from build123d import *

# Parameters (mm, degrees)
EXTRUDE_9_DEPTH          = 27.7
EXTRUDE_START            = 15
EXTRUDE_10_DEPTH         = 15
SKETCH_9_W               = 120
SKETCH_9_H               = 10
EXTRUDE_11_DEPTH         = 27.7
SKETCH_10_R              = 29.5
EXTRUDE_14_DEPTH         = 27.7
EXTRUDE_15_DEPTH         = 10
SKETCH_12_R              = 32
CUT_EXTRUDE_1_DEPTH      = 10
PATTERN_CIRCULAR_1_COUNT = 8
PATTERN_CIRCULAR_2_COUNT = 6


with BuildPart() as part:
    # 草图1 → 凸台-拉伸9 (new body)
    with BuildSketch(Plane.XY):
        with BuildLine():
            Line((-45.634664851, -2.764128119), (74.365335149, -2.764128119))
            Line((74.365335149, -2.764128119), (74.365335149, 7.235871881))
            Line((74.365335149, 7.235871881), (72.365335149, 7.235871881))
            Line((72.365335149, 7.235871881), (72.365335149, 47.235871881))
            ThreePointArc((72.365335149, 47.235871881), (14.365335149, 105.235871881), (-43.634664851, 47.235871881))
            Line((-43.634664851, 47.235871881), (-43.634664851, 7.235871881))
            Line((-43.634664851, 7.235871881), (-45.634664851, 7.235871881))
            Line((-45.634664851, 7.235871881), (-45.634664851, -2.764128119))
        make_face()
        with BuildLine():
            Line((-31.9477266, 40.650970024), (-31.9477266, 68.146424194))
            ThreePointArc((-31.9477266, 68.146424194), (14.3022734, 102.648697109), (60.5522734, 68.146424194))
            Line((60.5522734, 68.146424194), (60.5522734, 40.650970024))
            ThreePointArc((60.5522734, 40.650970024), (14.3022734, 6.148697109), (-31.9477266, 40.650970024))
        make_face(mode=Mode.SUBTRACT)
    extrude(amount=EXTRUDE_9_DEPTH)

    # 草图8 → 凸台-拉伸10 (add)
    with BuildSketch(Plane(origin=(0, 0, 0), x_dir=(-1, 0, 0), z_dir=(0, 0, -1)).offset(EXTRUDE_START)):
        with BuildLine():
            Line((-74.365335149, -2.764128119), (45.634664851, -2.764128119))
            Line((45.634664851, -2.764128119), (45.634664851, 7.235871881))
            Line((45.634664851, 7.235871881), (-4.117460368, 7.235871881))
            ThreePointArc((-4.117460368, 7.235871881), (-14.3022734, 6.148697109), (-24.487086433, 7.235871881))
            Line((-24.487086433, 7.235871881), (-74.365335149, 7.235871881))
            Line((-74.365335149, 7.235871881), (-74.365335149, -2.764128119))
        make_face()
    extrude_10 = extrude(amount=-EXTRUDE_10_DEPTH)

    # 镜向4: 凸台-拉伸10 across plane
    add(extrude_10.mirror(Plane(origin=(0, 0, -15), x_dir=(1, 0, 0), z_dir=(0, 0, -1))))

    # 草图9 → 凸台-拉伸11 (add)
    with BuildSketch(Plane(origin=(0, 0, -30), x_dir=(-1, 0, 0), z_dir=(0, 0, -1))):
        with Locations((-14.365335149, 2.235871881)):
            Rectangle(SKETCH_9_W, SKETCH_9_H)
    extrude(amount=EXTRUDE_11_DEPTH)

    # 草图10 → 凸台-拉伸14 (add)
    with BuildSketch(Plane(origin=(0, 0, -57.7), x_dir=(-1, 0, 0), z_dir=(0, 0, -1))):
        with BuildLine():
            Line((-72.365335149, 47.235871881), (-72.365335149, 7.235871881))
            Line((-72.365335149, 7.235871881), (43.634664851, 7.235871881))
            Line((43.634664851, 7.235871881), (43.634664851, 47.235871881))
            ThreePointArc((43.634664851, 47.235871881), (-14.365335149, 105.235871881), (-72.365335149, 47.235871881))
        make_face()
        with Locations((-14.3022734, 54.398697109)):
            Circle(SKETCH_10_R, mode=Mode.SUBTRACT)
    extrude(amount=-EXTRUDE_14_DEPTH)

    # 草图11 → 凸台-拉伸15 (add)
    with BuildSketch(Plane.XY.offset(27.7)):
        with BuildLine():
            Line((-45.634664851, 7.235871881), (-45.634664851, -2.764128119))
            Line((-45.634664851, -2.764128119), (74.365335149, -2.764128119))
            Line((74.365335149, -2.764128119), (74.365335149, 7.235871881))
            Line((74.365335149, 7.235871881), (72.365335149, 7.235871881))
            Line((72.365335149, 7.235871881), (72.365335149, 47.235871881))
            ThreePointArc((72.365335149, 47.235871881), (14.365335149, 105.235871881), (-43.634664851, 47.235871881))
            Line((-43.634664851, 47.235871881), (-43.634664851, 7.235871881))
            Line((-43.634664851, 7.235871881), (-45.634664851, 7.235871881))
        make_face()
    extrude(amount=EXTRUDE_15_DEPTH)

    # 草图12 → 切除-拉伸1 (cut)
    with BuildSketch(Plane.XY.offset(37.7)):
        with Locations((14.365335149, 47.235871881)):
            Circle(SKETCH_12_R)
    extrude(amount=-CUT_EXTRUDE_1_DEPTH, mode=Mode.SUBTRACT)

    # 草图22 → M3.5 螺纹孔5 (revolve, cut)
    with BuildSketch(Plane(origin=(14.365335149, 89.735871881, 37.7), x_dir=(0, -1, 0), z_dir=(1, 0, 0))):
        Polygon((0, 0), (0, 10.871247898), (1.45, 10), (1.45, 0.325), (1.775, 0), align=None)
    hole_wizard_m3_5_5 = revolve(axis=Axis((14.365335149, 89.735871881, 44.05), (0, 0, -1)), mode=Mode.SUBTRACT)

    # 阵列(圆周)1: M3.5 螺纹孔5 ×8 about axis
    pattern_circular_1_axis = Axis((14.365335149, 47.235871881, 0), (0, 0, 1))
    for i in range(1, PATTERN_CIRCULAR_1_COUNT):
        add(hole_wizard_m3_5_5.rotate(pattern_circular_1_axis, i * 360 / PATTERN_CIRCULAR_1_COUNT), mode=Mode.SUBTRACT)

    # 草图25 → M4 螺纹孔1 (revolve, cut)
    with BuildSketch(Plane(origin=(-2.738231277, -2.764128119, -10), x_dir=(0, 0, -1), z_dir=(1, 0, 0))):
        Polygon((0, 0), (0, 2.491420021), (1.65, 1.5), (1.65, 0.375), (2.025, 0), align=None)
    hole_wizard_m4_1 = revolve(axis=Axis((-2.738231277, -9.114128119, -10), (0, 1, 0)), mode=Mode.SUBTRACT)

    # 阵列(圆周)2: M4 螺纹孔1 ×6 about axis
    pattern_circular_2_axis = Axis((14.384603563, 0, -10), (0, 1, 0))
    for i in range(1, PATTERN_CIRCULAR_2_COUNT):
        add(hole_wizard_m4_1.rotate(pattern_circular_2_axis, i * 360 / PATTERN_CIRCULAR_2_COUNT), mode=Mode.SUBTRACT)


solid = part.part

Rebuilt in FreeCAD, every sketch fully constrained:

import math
import FreeCAD as App
import Part
import Sketcher

V = App.Vector
Q = App.Units.Quantity


def add_polygon(sketch, points):
    """Adds a closed chain of lines whose ends are joined by coincident constraints."""
    first, n = sketch.GeometryCount, len(points)
    for a, b in zip(points, points[1:] + points[:1]):
        sketch.addGeometry(Part.LineSegment(App.Vector(*a, 0), App.Vector(*b, 0)), False)
    for i in range(n):
        sketch.addConstraint(Sketcher.Constraint("Coincident", first + i, 2, first + (i + 1) % n, 1))

doc = App.newDocument("Part")
body = doc.addObject("PartDesign::Body", "Body")

# Sketch on XY plane
sketch1 = body.newObject("Sketcher::SketchObject", "Sketch")
sketch1.AttachmentSupport = (doc.getObject("XY_Plane"), [""])
sketch1.MapMode = "FlatFace"
sketch1.addGeometry([
    Part.LineSegment(V(-45.634665, -2.764128, 0), V(74.365335, -2.764128, 0)),  # 0
    Part.LineSegment(V(74.365335, -2.764128, 0), V(74.365335, 7.235872, 0)),  # 1
    Part.LineSegment(V(74.365335, 7.235872, 0), V(72.365335, 7.235872, 0)),  # 2
    Part.LineSegment(V(72.365335, 7.235872, 0), V(72.365335, 47.235872, 0)),  # 3
    Part.ArcOfCircle(Part.Circle(V(14.365335, 47.235872, 0), V(0, 0, 1), 58), math.radians(0), math.radians(180)),  # 4
    Part.LineSegment(V(-43.634665, 47.235872, 0), V(-43.634665, 7.235872, 0)),  # 5
    Part.LineSegment(V(-43.634665, 7.235872, 0), V(-45.634665, 7.235872, 0)),  # 6
    Part.LineSegment(V(-45.634665, 7.235872, 0), V(-45.634665, -2.764128, 0)),  # 7
    Part.ArcOfCircle(Part.Circle(V(14.302273, 54.398697, 0), V(0, 0, 1), 48.25), math.radians(-163.445516), math.radians(-16.554484)),  # 8
    Part.LineSegment(V(-31.947727, 40.65097, 0), V(-31.947727, 68.146424, 0)),  # 9
    Part.ArcOfCircle(Part.Circle(V(14.302273, 54.398697, 0), V(0, 0, 1), 48.25), math.radians(16.554484), math.radians(163.445516)),  # 10
    Part.LineSegment(V(60.552273, 68.146424, 0), V(60.552273, 40.65097, 0)),  # 11
], False)
sketch1.addConstraint([
    Sketcher.Constraint("Coincident", 0, 2, 1, 1),
    Sketcher.Constraint("Coincident", 1, 2, 2, 1),
    Sketcher.Constraint("Coincident", 2, 2, 3, 1),
    Sketcher.Constraint("Tangent", 3, 2, 4, 1),
    Sketcher.Constraint("Tangent", 4, 2, 5, 1),
    Sketcher.Constraint("Coincident", 5, 2, 6, 1),
    Sketcher.Constraint("Coincident", 6, 2, 7, 1),
    Sketcher.Constraint("Coincident", 7, 2, 0, 1),
    Sketcher.Constraint("Coincident", 8, 1, 9, 1),
    Sketcher.Constraint("Coincident", 9, 2, 10, 2),
    Sketcher.Constraint("Coincident", 10, 1, 11, 1),
    Sketcher.Constraint("Coincident", 11, 2, 8, 2),
    Sketcher.Constraint("Horizontal", 0),
    Sketcher.Constraint("Vertical", 1),
    Sketcher.Constraint("Horizontal", 2),
    Sketcher.Constraint("Vertical", 3),
    Sketcher.Constraint("Vertical", 5),
    Sketcher.Constraint("Horizontal", 6),
    Sketcher.Constraint("Vertical", 7),
    Sketcher.Constraint("Vertical", 9),
    Sketcher.Constraint("Vertical", 11),
    Sketcher.Constraint("Coincident", 10, 3, 8, 3),
    Sketcher.Constraint("Equal", 8, 10),
    Sketcher.Constraint("Horizontal", 2, 2, 5, 2),
    Sketcher.Constraint("Horizontal", 9, 2, 10, 1),
    Sketcher.Constraint("Equal", 2, 6),
    Sketcher.Constraint("Radius", 4, Q("58 mm")),
    Sketcher.Constraint("DistanceX", 0, 1, 0, 2, Q("120 mm")),
    Sketcher.Constraint("DistanceY", 1, 1, 1, 2, Q("10 mm")),
    Sketcher.Constraint("DistanceY", 3, 1, 3, 2, Q("40 mm")),
    Sketcher.Constraint("Radius", 8, Q("48.25 mm")),
    Sketcher.Constraint("DistanceX", 9, 2, 8, 3, Q("46.25 mm")),
    Sketcher.Constraint("DistanceY", 8, 1, 4, 2, Q("6.584902 mm")),
    Sketcher.Constraint("DistanceY", -1, 1, 4, 3, Q("47.235872 mm")),
    Sketcher.Constraint("DistanceX", 8, 3, 4, 3, Q("0.063062 mm")),
    Sketcher.Constraint("DistanceX", -1, 1, 4, 3, Q("14.365335 mm")),
])
pad1 = body.newObject("PartDesign::Pad", "Pad")
pad1.Profile = sketch1
pad1.Length = 27.7

# Sketch on XY plane
sketch2 = body.newObject("Sketcher::SketchObject", "Sketch001")
sketch2.AttachmentSupport = (doc.getObject("XY_Plane"), [""])
sketch2.MapMode = "FlatFace"
sketch2.AttachmentOffset = App.Placement(V(0, 0, -15), App.Rotation())
sketch2.addGeometry([
    Part.LineSegment(V(74.365335, -2.764128, 0), V(-45.634665, -2.764128, 0)),  # 0
    Part.LineSegment(V(-45.634665, -2.764128, 0), V(-45.634665, 7.235872, 0)),  # 1
    Part.LineSegment(V(-45.634665, 7.235872, 0), V(4.11746, 7.235872, 0)),  # 2
    Part.ArcOfCircle(Part.Circle(V(14.302273, 54.398697, 0), V(0, 0, 1), 48.25), math.radians(-102.185897), math.radians(-77.814103)),  # 3
    Part.LineSegment(V(24.487086, 7.235872, 0), V(74.365335, 7.235872, 0)),  # 4
    Part.LineSegment(V(74.365335, 7.235872, 0), V(74.365335, -2.764128, 0)),  # 5
], False)
sketch2.addConstraint([
    Sketcher.Constraint("Coincident", 0, 2, 1, 1),
    Sketcher.Constraint("Coincident", 1, 2, 2, 1),
    Sketcher.Constraint("Coincident", 2, 2, 3, 1),
    Sketcher.Constraint("Coincident", 3, 2, 4, 1),
    Sketcher.Constraint("Coincident", 4, 2, 5, 1),
    Sketcher.Constraint("Coincident", 5, 2, 0, 1),
    Sketcher.Constraint("Horizontal", 0),
    Sketcher.Constraint("Vertical", 1),
    Sketcher.Constraint("Horizontal", 2),
    Sketcher.Constraint("Horizontal", 4),
    Sketcher.Constraint("Vertical", 5),
    Sketcher.Constraint("Horizontal", 2, 2, 3, 2),
    Sketcher.Constraint("DistanceX", 0, 2, 0, 1, Q("120 mm")),
    Sketcher.Constraint("DistanceY", 1, 1, 1, 2, Q("10 mm")),
    Sketcher.Constraint("Radius", 3, Q("48.25 mm")),
    Sketcher.Constraint("DistanceX", 4, 1, 4, 2, Q("49.878249 mm")),
    Sketcher.Constraint("DistanceX", 2, 1, 2, 2, Q("49.752125 mm")),
    Sketcher.Constraint("DistanceY", 0, 2, -1, 1, Q("2.764128 mm")),
    Sketcher.Constraint("DistanceX", -1, 1, 2, 2, Q("4.11746 mm")),
])
pad2 = body.newObject("PartDesign::Pad", "Pad001")
pad2.Profile = sketch2
pad2.Length = 15
doc.recompute()

datumplane = body.newObject("PartDesign::Plane", "DatumPlane")
datumplane.AttachmentSupport = (doc.getObject("XY_Plane"), [""])
datumplane.MapMode = "FlatFace"
datumplane.AttachmentOffset = App.Placement(V(0, 0, -15), App.Rotation())
mirrored = body.newObject("PartDesign::Mirrored", "Mirrored")
mirrored.Originals = [pad2]
mirrored.MirrorPlane = (datumplane, [""])
body.Tip = mirrored

# Sketch on XY plane
sketch3 = body.newObject("Sketcher::SketchObject", "Sketch002")
sketch3.AttachmentSupport = (doc.getObject("XY_Plane"), [""])
sketch3.MapMode = "FlatFace"
sketch3.AttachmentOffset = App.Placement(V(0, 0, -30), App.Rotation())
add_polygon(sketch3, [(74.365335, 7.235872), (74.365335, -2.764128), (-45.634665, -2.764128), (-45.634665, 7.235872)])  # lines 0-3
sketch3.addConstraint([
    Sketcher.Constraint("Vertical", 0),
    Sketcher.Constraint("Horizontal", 1),
    Sketcher.Constraint("Vertical", 2),
    Sketcher.Constraint("Horizontal", 3),
    Sketcher.Constraint("DistanceX", 1, 2, 1, 1, Q("120 mm")),
    Sketcher.Constraint("DistanceY", 0, 2, 0, 1, Q("10 mm")),
    Sketcher.Constraint("DistanceY", 0, 2, -1, 1, Q("2.764128 mm")),
    Sketcher.Constraint("DistanceX", -1, 1, 0, 2, Q("74.365335 mm")),
])
pad3 = body.newObject("PartDesign::Pad", "Pad002")
pad3.Profile = sketch3
pad3.Length = 27.7
pad3.Reversed = True

# Sketch on XY plane
sketch4 = body.newObject("Sketcher::SketchObject", "Sketch003")
sketch4.AttachmentSupport = (doc.getObject("XY_Plane"), [""])
sketch4.MapMode = "FlatFace"
sketch4.AttachmentOffset = App.Placement(V(0, 0, -57.7), App.Rotation())
sketch4.addGeometry([
    Part.LineSegment(V(72.365335, 47.235872, 0), V(72.365335, 7.235872, 0)),  # 0
    Part.LineSegment(V(72.365335, 7.235872, 0), V(-43.634665, 7.235872, 0)),  # 1
    Part.LineSegment(V(-43.634665, 7.235872, 0), V(-43.634665, 47.235872, 0)),  # 2
    Part.ArcOfCircle(Part.Circle(V(14.365335, 47.235872, 0), V(0, 0, 1), 58), math.radians(0), math.radians(180)),  # 3
    Part.Circle(V(14.302273, 54.398697, 0), V(0, 0, 1), 29.5),  # 4
], False)
sketch4.addConstraint([
    Sketcher.Constraint("Coincident", 0, 2, 1, 1),
    Sketcher.Constraint("Coincident", 1, 2, 2, 1),
    Sketcher.Constraint("Tangent", 2, 2, 3, 2),
    Sketcher.Constraint("Tangent", 3, 1, 0, 1),
    Sketcher.Constraint("Vertical", 0),
    Sketcher.Constraint("Horizontal", 1),
    Sketcher.Constraint("Vertical", 2),
    Sketcher.Constraint("Diameter", 4, Q("59 mm")),
    Sketcher.Constraint("Radius", 3, Q("58 mm")),
    Sketcher.Constraint("DistanceY", 0, 2, 0, 1, Q("40 mm")),
    Sketcher.Constraint("DistanceY", -1, 1, 3, 3, Q("47.235872 mm")),
    Sketcher.Constraint("DistanceX", 4, 3, 3, 3, Q("0.063062 mm")),
    Sketcher.Constraint("DistanceX", -1, 1, 3, 3, Q("14.365335 mm")),
    Sketcher.Constraint("DistanceY", -1, 1, 4, 3, Q("54.398697 mm")),
])
pad4 = body.newObject("PartDesign::Pad", "Pad003")
pad4.Profile = sketch4
pad4.Length = 27.7

# Sketch on XY plane
sketch5 = body.newObject("Sketcher::SketchObject", "Sketch004")
sketch5.AttachmentSupport = (doc.getObject("XY_Plane"), [""])
sketch5.MapMode = "FlatFace"
sketch5.AttachmentOffset = App.Placement(V(0, 0, 27.7), App.Rotation())
sketch5.addGeometry([
    Part.LineSegment(V(-45.634665, 7.235872, 0), V(-45.634665, -2.764128, 0)),  # 0
    Part.LineSegment(V(-45.634665, -2.764128, 0), V(74.365335, -2.764128, 0)),  # 1
    Part.LineSegment(V(74.365335, -2.764128, 0), V(74.365335, 7.235872, 0)),  # 2
    Part.LineSegment(V(74.365335, 7.235872, 0), V(72.365335, 7.235872, 0)),  # 3
    Part.LineSegment(V(72.365335, 7.235872, 0), V(72.365335, 47.235872, 0)),  # 4
    Part.ArcOfCircle(Part.Circle(V(14.365335, 47.235872, 0), V(0, 0, 1), 58), math.radians(0), math.radians(180)),  # 5
    Part.LineSegment(V(-43.634665, 47.235872, 0), V(-43.634665, 7.235872, 0)),  # 6
    Part.LineSegment(V(-43.634665, 7.235872, 0), V(-45.634665, 7.235872, 0)),  # 7
], False)
sketch5.addConstraint([
    Sketcher.Constraint("Coincident", 0, 2, 1, 1),
    Sketcher.Constraint("Coincident", 1, 2, 2, 1),
    Sketcher.Constraint("Coincident", 2, 2, 3, 1),
    Sketcher.Constraint("Coincident", 3, 2, 4, 1),
    Sketcher.Constraint("Tangent", 4, 2, 5, 1),
    Sketcher.Constraint("Tangent", 5, 2, 6, 1),
    Sketcher.Constraint("Coincident", 6, 2, 7, 1),
    Sketcher.Constraint("Coincident", 7, 2, 0, 1),
    Sketcher.Constraint("Vertical", 0),
    Sketcher.Constraint("Horizontal", 1),
    Sketcher.Constraint("Vertical", 2),
    Sketcher.Constraint("Horizontal", 3),
    Sketcher.Constraint("Vertical", 4),
    Sketcher.Constraint("Vertical", 6),
    Sketcher.Constraint("Horizontal", 7),
    Sketcher.Constraint("Horizontal", 3, 2, 6, 2),
    Sketcher.Constraint("Equal", 3, 7),
    Sketcher.Constraint("Radius", 5, Q("58 mm")),
    Sketcher.Constraint("DistanceX", 1, 1, 1, 2, Q("120 mm")),
    Sketcher.Constraint("DistanceY", 0, 2, 0, 1, Q("10 mm")),
    Sketcher.Constraint("DistanceY", 4, 1, 4, 2, Q("40 mm")),
    Sketcher.Constraint("DistanceY", -1, 1, 5, 3, Q("47.235872 mm")),
    Sketcher.Constraint("DistanceX", -1, 1, 5, 3, Q("14.365335 mm")),
])
pad5 = body.newObject("PartDesign::Pad", "Pad004")
pad5.Profile = sketch5
pad5.Length = 10

# Sketch on XY plane
sketch6 = body.newObject("Sketcher::SketchObject", "Sketch005")
sketch6.AttachmentSupport = (doc.getObject("XY_Plane"), [""])
sketch6.MapMode = "FlatFace"
sketch6.AttachmentOffset = App.Placement(V(0, 0, 37.7), App.Rotation())
sketch6.addGeometry(Part.Circle(V(14.365335, 47.235872, 0), V(0, 0, 1), 32), False)
sketch6.addConstraint([
    Sketcher.Constraint("Diameter", 0, Q("64 mm")),
    Sketcher.Constraint("DistanceY", -1, 1, 0, 3, Q("47.235872 mm")),
    Sketcher.Constraint("DistanceX", -1, 1, 0, 3, Q("14.365335 mm")),
])
pocket1 = body.newObject("PartDesign::Pocket", "Pocket")
pocket1.Profile = sketch6
pocket1.Length = 10

# Sketch on YZ plane
sketch7 = body.newObject("Sketcher::SketchObject", "Sketch006")
sketch7.AttachmentSupport = (doc.getObject("YZ_Plane"), [""])
sketch7.MapMode = "FlatFace"
sketch7.AttachmentOffset = App.Placement(V(0, 0, 14.365335), App.Rotation())
add_polygon(sketch7, [(89.735872, 26.828752), (89.735872, 37.7), (87.960872, 37.7), (88.285872, 37.375), (88.285872, 27.7)])  # lines 0-4
sketch7.addGeometry(Part.LineSegment(V(89.735872, 37.7, 0), V(89.735872, 26.828752, 0)), True)  # axis
sketch7.addConstraint([
    Sketcher.Constraint("Vertical", 0),
    Sketcher.Constraint("Horizontal", 1),
    Sketcher.Constraint("Vertical", 3),
    Sketcher.Constraint("Vertical", 5),
    Sketcher.Constraint("Coincident", 5, 1, 0, 2),
    Sketcher.Constraint("Equal", 0, 5),
    Sketcher.Constraint("Angle", 2, Q("-45 deg")),
    Sketcher.Constraint("Angle", 4, Q("-31 deg")),
    Sketcher.Constraint("DistanceY", 3, 2, 1, 2, Q("10 mm")),
    Sketcher.Constraint("DistanceY", -1, 1, 0, 2, Q("37.7 mm")),
    Sketcher.Constraint("DistanceX", 1, 2, 1, 1, Q("1.775 mm")),
    Sketcher.Constraint("DistanceY", 3, 2, 3, 1, Q("9.675 mm")),
    Sketcher.Constraint("DistanceX", -1, 1, 0, 2, Q("89.735872 mm")),
])
groove = body.newObject("PartDesign::Groove", "Groove")
groove.Profile = sketch7
groove.ReferenceAxis = (sketch7, ["Axis0"])
groove.Angle = 360
doc.recompute()

datumline = body.newObject("PartDesign::Line", "DatumLine")
datumline.Placement = App.Placement(V(14.365335, 47.235872, 0), App.Rotation(V(0, 0, 1), V(0, 0, 1)))
polarpattern = body.newObject("PartDesign::PolarPattern", "PolarPattern")
polarpattern.Originals = [groove]
polarpattern.Axis = (datumline, [""])
polarpattern.Angle = 360
polarpattern.Occurrences = 8
body.Tip = polarpattern

# Sketch on YZ plane
sketch8 = body.newObject("Sketcher::SketchObject", "Sketch007")
sketch8.AttachmentSupport = (doc.getObject("YZ_Plane"), [""])
sketch8.MapMode = "FlatFace"
sketch8.AttachmentOffset = App.Placement(V(0, 0, -2.738231), App.Rotation())
add_polygon(sketch8, [(-0.272708, -10), (-2.764128, -10), (-2.764128, -12.025), (-2.389128, -11.65), (-1.264128, -11.65)])  # lines 0-4
sketch8.addGeometry(Part.LineSegment(V(-2.764128, -10, 0), V(-0.272708, -10, 0)), True)  # axis
sketch8.addConstraint([
    Sketcher.Constraint("Horizontal", 0),
    Sketcher.Constraint("Vertical", 1),
    Sketcher.Constraint("Horizontal", 3),
    Sketcher.Constraint("Horizontal", 5),
    Sketcher.Constraint("Coincident", 5, 1, 0, 2),
    Sketcher.Constraint("Equal", 0, 5),
    Sketcher.Constraint("Angle", 2, Q("45 deg")),
    Sketcher.Constraint("Angle", 4, Q("59 deg")),
    Sketcher.Constraint("DistanceY", 0, 2, -1, 1, Q("10 mm")),
    Sketcher.Constraint("DistanceX", 1, 2, 3, 2, Q("1.5 mm")),
    Sketcher.Constraint("DistanceX", 3, 1, 3, 2, Q("1.125 mm")),
    Sketcher.Constraint("DistanceY", 1, 2, 1, 1, Q("2.025 mm")),
    Sketcher.Constraint("DistanceX", 0, 2, -1, 1, Q("2.764128 mm")),
])
groove2 = body.newObject("PartDesign::Groove", "Groove001")
groove2.Profile = sketch8
groove2.ReferenceAxis = (sketch8, ["Axis0"])
groove2.Angle = 360
doc.recompute()

datumline2 = body.newObject("PartDesign::Line", "DatumLine001")
datumline2.Placement = App.Placement(V(14.384604, 0, -10), App.Rotation(V(0, 0, 1), V(0, 1, 0)))
polarpattern2 = body.newObject("PartDesign::PolarPattern", "PolarPattern001")
polarpattern2.Originals = [groove2]
polarpattern2.Axis = (datumline2, [""])
polarpattern2.Angle = 360
polarpattern2.Occurrences = 6
body.Tip = polarpattern2

doc.recompute()
